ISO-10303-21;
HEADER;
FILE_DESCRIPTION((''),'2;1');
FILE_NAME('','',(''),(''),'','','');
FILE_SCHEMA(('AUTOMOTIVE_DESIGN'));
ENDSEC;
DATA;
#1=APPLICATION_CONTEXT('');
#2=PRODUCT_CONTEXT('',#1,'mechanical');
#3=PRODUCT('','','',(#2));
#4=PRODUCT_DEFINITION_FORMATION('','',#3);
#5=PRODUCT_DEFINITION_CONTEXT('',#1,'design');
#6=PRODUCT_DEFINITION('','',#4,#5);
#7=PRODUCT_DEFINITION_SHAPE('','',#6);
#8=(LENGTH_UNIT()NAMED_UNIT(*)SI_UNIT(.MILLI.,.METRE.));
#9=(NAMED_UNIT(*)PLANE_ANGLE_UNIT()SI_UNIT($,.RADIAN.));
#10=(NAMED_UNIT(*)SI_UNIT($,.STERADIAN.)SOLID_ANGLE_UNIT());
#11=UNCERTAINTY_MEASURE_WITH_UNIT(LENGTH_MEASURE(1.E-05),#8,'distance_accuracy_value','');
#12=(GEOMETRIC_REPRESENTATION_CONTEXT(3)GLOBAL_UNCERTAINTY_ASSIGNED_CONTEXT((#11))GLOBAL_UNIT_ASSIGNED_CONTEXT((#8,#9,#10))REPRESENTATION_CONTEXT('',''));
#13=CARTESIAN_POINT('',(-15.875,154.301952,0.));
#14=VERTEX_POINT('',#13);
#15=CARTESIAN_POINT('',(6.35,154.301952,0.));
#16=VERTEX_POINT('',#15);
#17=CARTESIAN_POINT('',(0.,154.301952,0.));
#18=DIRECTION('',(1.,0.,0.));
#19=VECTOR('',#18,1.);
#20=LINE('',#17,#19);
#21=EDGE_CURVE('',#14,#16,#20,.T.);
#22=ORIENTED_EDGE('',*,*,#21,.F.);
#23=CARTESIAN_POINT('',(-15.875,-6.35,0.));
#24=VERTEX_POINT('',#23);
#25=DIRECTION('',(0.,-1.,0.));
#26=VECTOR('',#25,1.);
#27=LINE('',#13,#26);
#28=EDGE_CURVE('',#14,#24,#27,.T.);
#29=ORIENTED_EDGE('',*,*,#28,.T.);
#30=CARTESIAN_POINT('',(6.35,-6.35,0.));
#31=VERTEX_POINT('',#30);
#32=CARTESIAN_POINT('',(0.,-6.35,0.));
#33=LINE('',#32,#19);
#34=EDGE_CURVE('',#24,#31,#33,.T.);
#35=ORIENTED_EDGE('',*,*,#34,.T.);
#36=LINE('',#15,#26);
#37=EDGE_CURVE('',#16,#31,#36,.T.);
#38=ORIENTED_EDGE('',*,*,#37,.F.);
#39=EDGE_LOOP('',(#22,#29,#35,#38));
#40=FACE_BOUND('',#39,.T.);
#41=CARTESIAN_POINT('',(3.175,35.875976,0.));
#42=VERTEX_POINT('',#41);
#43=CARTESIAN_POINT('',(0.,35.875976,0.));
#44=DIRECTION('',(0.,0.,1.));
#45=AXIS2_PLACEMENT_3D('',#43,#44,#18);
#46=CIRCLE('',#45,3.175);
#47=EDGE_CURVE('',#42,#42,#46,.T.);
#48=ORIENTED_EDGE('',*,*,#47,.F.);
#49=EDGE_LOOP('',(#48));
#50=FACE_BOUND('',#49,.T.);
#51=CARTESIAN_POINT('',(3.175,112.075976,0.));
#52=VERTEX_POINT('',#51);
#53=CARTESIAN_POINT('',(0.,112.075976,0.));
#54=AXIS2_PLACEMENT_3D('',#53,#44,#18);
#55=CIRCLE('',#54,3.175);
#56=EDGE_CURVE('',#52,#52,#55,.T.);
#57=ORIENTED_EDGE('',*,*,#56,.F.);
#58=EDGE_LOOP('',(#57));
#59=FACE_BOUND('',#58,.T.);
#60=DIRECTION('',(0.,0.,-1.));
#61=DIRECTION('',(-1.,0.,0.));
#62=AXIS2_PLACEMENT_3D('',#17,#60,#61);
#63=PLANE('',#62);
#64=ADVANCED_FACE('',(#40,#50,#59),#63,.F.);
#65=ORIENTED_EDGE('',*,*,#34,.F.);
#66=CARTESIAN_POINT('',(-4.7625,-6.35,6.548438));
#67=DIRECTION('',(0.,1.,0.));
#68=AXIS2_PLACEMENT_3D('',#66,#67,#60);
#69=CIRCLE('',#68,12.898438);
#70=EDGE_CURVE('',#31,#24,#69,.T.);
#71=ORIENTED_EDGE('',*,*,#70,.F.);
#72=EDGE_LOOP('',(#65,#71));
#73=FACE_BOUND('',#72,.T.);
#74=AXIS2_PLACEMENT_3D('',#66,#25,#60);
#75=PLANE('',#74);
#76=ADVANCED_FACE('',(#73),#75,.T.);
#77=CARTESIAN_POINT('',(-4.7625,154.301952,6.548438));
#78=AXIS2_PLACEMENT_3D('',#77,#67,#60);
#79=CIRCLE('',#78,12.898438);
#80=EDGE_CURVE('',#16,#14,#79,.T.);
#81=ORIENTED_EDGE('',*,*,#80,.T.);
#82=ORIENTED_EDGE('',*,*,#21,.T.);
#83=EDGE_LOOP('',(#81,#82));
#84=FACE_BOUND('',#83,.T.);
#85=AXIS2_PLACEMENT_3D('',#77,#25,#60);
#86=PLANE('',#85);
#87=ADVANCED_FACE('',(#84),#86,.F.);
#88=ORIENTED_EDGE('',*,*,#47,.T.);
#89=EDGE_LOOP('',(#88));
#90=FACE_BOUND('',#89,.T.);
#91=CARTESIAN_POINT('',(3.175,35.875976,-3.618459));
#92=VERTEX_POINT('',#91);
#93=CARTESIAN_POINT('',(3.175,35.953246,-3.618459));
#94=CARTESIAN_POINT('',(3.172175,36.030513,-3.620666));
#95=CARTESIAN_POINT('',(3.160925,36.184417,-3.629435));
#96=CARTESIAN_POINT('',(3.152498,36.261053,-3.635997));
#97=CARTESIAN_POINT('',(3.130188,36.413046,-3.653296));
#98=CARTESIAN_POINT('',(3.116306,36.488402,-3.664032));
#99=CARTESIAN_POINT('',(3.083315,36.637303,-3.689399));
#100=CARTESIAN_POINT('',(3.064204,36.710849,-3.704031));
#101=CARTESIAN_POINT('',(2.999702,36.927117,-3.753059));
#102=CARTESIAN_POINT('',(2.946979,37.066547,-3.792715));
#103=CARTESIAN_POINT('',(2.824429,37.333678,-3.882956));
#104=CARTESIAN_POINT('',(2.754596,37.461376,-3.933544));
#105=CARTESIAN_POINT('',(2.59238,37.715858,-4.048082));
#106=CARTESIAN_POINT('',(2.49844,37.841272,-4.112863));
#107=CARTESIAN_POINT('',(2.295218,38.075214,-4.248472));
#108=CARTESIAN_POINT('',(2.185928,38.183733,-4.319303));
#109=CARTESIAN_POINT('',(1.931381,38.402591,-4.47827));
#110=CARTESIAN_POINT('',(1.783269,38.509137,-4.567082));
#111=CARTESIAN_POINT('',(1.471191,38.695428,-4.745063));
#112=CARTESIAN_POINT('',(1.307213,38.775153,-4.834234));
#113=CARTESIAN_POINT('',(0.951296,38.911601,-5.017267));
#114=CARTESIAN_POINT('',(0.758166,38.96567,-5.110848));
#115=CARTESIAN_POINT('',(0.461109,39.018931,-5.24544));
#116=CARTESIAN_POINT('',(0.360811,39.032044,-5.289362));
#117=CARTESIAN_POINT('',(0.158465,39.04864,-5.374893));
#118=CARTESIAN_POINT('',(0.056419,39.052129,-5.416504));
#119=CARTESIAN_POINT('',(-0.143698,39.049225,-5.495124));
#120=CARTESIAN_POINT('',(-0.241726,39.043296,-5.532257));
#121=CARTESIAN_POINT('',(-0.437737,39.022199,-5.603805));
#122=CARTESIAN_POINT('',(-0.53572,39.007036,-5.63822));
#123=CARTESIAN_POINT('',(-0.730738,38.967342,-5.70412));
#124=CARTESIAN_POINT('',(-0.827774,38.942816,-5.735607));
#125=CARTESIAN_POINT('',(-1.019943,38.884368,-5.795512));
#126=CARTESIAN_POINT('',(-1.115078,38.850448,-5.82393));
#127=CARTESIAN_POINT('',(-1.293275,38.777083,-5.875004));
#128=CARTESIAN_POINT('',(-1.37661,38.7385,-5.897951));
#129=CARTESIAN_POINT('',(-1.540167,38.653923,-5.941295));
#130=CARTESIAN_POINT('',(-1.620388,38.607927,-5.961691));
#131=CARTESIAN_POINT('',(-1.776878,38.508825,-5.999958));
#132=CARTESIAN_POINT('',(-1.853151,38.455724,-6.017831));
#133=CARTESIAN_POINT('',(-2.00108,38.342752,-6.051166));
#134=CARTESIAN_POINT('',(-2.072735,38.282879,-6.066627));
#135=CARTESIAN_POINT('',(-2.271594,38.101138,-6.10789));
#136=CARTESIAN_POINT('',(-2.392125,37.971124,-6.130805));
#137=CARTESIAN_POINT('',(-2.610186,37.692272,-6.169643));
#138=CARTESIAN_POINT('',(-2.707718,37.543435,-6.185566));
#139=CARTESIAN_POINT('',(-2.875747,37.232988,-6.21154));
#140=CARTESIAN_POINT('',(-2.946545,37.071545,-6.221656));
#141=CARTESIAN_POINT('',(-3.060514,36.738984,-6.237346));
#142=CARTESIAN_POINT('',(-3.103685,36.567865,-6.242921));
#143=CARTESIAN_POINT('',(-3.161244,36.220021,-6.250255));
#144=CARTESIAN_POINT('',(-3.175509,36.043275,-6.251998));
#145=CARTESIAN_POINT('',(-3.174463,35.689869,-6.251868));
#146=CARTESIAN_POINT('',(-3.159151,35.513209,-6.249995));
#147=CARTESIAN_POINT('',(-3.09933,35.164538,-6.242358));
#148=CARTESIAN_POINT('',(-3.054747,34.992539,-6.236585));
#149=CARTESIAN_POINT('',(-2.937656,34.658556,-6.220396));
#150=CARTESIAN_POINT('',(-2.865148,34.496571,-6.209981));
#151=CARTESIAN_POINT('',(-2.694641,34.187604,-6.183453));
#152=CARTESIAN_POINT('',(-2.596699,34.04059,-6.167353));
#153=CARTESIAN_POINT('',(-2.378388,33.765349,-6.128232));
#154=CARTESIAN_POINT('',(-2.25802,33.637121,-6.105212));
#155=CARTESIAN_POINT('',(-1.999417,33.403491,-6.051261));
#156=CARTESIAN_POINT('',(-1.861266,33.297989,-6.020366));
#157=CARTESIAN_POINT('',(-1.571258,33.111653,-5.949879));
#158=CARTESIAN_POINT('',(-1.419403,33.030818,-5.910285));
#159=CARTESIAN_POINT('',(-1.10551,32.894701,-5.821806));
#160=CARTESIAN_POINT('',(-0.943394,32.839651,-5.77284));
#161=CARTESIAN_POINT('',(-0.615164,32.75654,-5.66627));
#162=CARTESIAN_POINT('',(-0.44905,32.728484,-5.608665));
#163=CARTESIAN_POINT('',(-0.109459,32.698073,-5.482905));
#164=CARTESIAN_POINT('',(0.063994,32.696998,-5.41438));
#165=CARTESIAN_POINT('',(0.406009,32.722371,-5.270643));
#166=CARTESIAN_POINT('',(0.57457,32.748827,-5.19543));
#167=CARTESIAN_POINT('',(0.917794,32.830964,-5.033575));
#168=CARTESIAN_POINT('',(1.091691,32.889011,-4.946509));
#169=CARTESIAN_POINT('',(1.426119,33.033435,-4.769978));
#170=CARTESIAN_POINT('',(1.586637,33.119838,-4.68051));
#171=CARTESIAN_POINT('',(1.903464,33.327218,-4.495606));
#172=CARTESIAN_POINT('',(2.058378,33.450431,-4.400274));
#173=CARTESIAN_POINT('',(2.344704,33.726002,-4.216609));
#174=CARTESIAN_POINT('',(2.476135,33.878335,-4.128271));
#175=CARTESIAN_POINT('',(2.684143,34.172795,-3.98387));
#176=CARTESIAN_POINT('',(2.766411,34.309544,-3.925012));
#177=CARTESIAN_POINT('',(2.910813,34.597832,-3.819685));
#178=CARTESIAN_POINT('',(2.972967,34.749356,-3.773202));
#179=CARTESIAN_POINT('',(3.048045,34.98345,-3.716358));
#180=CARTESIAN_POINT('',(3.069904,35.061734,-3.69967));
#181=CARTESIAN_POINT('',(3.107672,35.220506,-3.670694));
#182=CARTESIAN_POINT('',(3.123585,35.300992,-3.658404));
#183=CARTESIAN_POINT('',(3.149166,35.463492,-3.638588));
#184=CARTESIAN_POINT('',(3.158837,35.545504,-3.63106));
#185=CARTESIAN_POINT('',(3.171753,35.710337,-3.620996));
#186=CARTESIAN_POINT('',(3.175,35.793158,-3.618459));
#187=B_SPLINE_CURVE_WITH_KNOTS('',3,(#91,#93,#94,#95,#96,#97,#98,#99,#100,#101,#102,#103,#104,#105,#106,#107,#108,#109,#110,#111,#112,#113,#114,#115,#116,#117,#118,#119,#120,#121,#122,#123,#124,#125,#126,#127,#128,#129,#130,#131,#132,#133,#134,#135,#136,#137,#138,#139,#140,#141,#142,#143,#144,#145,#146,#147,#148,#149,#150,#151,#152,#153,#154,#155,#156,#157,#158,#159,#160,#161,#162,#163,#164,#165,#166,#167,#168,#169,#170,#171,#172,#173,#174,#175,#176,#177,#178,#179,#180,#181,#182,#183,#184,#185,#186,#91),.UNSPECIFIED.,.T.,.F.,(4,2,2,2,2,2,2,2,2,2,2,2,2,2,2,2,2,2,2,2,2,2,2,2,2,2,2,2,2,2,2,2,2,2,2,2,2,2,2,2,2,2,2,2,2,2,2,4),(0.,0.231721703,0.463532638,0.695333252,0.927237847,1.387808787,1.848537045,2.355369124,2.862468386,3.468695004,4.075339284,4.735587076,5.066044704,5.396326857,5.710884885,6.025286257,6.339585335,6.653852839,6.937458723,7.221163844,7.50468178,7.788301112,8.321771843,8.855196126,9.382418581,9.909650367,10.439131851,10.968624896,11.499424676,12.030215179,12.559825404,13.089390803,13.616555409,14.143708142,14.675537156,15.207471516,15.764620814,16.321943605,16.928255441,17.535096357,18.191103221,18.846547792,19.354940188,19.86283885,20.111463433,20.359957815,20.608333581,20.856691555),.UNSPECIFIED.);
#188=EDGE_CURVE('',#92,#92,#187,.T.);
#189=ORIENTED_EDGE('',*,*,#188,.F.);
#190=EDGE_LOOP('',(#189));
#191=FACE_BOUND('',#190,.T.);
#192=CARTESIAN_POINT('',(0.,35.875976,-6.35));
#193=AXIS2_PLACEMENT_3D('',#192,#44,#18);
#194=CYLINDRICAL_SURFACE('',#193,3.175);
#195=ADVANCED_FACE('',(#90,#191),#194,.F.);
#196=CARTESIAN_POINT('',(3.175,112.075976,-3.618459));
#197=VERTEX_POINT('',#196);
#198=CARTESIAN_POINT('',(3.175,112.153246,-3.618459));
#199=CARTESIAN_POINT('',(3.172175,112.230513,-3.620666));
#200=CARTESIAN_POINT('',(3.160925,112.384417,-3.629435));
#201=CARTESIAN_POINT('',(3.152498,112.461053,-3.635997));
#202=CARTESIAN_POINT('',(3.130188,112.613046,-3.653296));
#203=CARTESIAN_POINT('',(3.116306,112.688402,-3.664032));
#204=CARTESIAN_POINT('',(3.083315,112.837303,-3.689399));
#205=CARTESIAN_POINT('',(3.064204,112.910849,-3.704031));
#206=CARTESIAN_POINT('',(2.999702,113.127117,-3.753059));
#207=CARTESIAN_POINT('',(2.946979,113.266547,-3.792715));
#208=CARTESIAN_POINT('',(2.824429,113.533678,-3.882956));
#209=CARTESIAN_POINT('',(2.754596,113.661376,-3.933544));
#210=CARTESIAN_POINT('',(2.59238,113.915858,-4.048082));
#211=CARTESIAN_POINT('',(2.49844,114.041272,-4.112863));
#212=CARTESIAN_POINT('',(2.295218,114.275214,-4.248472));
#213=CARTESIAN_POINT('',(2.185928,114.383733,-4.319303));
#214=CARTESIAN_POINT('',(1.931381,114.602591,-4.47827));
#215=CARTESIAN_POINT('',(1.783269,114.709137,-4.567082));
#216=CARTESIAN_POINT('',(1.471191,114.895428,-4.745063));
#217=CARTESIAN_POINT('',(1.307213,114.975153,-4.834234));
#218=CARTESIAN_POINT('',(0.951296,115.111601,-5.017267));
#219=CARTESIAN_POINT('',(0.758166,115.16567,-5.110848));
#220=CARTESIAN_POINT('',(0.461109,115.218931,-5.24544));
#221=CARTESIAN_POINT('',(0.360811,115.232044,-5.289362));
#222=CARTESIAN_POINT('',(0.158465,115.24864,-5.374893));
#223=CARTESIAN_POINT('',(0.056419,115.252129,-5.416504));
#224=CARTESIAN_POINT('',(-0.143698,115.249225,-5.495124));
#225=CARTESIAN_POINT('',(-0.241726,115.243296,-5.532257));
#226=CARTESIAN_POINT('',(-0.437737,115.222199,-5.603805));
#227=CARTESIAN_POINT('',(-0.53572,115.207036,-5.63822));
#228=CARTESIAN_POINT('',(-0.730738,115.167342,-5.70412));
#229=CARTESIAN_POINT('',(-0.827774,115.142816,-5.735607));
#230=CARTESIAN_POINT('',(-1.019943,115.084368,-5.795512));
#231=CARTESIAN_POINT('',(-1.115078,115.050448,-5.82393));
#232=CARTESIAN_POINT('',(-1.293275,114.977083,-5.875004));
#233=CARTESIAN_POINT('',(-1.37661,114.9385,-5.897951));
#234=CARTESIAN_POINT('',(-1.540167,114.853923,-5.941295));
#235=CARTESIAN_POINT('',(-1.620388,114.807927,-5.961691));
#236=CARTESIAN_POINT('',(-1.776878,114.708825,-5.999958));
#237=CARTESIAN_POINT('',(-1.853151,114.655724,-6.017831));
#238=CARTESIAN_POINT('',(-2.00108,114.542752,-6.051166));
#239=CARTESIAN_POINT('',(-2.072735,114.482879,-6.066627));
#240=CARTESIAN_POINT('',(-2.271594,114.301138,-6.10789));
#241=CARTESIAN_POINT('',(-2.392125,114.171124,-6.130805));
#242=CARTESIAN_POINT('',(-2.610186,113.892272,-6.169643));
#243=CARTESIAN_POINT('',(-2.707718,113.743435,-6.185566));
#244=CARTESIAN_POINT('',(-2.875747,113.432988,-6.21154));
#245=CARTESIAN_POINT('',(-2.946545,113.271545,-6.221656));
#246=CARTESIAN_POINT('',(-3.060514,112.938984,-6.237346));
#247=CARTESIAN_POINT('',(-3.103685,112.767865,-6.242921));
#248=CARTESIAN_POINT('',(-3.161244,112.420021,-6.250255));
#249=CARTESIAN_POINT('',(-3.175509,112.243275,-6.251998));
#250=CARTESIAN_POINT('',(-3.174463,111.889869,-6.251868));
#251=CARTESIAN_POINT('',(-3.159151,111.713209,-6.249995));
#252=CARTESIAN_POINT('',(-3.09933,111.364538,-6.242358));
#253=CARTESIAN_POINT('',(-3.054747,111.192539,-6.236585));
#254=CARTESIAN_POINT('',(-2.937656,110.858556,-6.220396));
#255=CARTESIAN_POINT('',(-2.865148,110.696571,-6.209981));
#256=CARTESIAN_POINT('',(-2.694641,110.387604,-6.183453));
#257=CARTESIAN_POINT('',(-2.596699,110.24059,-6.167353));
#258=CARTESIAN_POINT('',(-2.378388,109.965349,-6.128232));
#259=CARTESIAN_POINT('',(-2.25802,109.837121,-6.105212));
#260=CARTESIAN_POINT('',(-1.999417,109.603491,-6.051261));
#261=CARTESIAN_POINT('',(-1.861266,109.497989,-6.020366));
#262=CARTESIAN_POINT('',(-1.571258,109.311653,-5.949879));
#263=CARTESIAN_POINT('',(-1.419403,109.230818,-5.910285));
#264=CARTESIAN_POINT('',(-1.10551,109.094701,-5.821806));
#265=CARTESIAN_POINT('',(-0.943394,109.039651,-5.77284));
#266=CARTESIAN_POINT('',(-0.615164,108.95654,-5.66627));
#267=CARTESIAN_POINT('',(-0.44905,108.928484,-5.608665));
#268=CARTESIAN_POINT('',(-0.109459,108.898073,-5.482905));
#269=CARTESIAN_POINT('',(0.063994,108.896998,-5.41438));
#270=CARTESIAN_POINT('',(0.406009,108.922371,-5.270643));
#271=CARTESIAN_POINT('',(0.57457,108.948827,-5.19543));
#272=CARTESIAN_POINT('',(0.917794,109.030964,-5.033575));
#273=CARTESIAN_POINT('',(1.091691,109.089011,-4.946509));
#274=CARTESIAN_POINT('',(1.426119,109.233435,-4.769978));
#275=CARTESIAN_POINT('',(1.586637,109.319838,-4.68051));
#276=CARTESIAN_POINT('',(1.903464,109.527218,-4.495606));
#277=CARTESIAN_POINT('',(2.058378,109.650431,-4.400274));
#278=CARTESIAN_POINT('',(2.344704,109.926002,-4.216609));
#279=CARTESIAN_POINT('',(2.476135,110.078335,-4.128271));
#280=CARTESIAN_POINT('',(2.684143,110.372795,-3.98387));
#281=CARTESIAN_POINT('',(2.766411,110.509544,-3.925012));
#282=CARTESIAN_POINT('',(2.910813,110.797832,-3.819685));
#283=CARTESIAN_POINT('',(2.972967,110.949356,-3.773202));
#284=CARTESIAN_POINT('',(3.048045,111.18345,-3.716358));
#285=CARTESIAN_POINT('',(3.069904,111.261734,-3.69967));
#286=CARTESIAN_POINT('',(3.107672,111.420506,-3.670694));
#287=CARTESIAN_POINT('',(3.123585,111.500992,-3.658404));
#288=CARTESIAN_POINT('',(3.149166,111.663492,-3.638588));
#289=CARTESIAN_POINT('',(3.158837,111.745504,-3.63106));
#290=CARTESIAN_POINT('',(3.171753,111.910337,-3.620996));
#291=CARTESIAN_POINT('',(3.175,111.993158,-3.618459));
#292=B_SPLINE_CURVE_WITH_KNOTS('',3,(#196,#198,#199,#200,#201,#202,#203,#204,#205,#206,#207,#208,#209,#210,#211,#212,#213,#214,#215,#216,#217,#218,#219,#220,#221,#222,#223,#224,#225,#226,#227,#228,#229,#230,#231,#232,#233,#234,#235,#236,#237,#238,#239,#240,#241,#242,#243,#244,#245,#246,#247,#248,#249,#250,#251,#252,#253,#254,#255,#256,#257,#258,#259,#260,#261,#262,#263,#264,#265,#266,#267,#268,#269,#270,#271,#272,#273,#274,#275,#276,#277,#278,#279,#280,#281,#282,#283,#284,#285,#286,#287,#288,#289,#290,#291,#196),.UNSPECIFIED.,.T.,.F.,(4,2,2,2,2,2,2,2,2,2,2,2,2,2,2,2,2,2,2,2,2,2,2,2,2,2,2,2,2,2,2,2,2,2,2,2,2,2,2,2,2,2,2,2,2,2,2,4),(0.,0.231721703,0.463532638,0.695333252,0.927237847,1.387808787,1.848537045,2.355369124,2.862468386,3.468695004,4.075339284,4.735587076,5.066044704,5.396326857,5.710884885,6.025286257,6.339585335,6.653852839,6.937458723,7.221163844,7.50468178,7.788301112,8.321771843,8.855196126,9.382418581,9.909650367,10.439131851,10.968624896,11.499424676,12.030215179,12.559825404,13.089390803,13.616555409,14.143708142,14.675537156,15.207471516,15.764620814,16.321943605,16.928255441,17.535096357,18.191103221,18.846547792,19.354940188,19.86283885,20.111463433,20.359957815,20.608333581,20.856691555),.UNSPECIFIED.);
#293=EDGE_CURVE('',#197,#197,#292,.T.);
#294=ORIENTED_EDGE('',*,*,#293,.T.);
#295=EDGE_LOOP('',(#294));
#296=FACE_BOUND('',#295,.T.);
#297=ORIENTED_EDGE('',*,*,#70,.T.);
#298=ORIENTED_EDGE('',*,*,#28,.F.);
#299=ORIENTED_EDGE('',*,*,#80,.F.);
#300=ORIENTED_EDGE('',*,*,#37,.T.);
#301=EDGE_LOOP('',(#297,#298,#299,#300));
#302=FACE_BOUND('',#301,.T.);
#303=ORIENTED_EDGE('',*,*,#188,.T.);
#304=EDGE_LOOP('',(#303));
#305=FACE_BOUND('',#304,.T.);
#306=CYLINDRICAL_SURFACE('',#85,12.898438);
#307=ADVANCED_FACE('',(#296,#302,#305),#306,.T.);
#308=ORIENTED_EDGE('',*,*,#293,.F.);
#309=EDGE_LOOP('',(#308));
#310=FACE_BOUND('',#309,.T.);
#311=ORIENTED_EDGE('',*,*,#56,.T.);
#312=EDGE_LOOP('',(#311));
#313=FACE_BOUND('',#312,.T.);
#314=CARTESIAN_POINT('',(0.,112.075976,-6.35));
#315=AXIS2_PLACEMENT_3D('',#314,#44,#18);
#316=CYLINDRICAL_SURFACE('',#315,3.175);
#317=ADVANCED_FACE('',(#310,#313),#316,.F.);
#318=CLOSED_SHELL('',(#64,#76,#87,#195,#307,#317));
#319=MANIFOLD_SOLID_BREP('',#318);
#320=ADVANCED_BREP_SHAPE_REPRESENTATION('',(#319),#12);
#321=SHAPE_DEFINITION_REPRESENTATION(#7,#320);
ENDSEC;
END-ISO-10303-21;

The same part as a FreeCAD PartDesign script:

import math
import FreeCAD as App
import Part
import Sketcher
Q = App.Units.Quantity

doc = App.newDocument("Part")
body = doc.addObject("PartDesign::Body", "Body")

# Sketch on XZ plane
sketch1 = doc.addObject("Sketcher::SketchObject", "Sketch")
body.addObject(sketch1)
sketch1.AttachmentSupport = (doc.XZ_Plane, [""])
sketch1.MapMode = "FlatFace"
sketch1.AttachmentOffset = App.Placement(App.Vector(0, 0, 0.25 * 25.4), App.Rotation())
sketch1.addGeometry([
    Part.ArcOfCircle(Part.Circle(App.Vector(-5, 7, 0), App.Vector(0, 0, 1), 13), math.radians(-149), math.radians(-31)),
    Part.LineSegment(App.Vector(-16, 0, 0), App.Vector(6, 0, 0)),
], False)
sketch1.addConstraint([
    Sketcher.Constraint("Coincident", 0, 1, 1, 1),
    Sketcher.Constraint("Coincident", 1, 2, 0, 2),
    Sketcher.Constraint("Horizontal", 1),
    Sketcher.Constraint("PointOnObject", 0, 1, -1),
    Sketcher.Constraint("DistanceX", 1, 1, 1, 2, Q("0.875 in")),
    Sketcher.Constraint("DistanceX", -1, 1, 1, 2, Q("0.25 in")),
    Sketcher.Constraint("Radius", 0, Q("12.898438 mm")),
])
pad1 = doc.addObject("PartDesign::Pad", "Pad")
body.addObject(pad1)
pad1.Profile = sketch1
pad1.Length = 160.651952
pad1.Reversed = True

# Sketch on XY plane
sketch2 = doc.addObject("Sketcher::SketchObject", "Sketch001")
body.addObject(sketch2)
sketch2.AttachmentSupport = (doc.XY_Plane, [""])
sketch2.MapMode = "FlatFace"
sketch2.addGeometry([
    Part.Circle(App.Vector(0, 35.9, 0), App.Vector(0, 0, 1), 3.2),
    Part.Circle(App.Vector(0, 112.1, 0), App.Vector(0, 0, 1), 3.2),
], False)
sketch2.addConstraint([
    Sketcher.Constraint("Equal", 0, 1),
    Sketcher.Constraint("PointOnObject", 0, 3, -2),
    Sketcher.Constraint("PointOnObject", 1, 3, -2),
    Sketcher.Constraint("Diameter", 0, Q("0.25 in")),
    Sketcher.Constraint("DistanceY", 0, 3, 1, 3, Q("3 in")),
    Sketcher.Constraint("DistanceY", -1, 1, 0, 3, Q("35.875976 mm")),
])
pocket1 = doc.addObject("PartDesign::Pocket", "Pocket")
body.addObject(pocket1)
pocket1.Profile = sketch2
pocket1.Type = "ThroughAll"
pocket1.Midplane = True

doc.recompute()
